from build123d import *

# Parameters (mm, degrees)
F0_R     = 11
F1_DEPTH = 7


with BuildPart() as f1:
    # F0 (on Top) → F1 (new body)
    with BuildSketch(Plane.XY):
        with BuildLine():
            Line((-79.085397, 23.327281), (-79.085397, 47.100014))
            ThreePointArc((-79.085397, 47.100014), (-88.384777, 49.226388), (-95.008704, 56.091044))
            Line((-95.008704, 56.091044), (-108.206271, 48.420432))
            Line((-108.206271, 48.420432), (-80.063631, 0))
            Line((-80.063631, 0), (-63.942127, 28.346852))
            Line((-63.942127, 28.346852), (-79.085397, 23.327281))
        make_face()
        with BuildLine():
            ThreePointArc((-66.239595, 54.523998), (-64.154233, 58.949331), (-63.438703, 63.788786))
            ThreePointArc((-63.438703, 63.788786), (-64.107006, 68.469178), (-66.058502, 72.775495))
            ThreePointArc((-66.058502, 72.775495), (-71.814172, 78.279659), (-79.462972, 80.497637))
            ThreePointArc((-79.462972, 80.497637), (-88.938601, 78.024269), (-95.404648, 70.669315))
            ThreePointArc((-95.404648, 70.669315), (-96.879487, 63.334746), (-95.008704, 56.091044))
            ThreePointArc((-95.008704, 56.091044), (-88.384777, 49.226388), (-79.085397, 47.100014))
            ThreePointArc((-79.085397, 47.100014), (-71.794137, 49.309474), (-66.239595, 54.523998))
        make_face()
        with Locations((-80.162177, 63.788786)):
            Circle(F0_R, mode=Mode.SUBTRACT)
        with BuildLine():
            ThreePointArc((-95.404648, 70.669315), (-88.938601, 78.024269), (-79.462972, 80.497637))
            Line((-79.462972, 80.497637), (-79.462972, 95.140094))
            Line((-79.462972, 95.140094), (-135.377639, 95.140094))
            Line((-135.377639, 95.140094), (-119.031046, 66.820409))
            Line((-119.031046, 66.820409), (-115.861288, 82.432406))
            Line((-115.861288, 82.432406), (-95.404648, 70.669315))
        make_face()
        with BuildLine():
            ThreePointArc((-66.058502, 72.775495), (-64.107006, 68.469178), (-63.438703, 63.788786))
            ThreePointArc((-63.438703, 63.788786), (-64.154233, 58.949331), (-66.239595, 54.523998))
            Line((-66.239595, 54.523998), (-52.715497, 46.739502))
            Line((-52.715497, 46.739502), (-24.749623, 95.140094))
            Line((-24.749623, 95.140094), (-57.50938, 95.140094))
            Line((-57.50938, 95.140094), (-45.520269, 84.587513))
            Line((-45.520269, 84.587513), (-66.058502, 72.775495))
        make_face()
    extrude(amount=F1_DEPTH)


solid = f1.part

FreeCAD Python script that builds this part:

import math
import FreeCAD as App
import Part
import Sketcher

doc = App.newDocument("Part")
body = doc.addObject("PartDesign::Body", "Body")

# Sketch on XY plane
sketch1 = body.newObject("Sketcher::SketchObject", "Sketch")
sketch1.AttachmentSupport = (doc.getObject("XY_Plane"), [""])
sketch1.MapMode = "FlatFace"
sketch1.addGeometry(Part.LineSegment(App.Vector(-79.085397, 23.327281, 0), App.Vector(-79.085397, 47.100014, 0)), False)
sketch1.addGeometry(Part.ArcOfCircle(Part.Circle(App.Vector(-80.162177, 63.788788, 0), App.Vector(0, 0, 1), 16.723476), math.radians(-86.308322), math.radians(-33.641801)), False)
sketch1.addGeometry(Part.LineSegment(App.Vector(-66.239595, 54.523998, 0), App.Vector(-52.715497, 46.739502, 0)), False)
sketch1.addGeometry(Part.LineSegment(App.Vector(-52.715497, 46.739502, 0), App.Vector(-24.749623, 95.140094, 0)), False)
sketch1.addGeometry(Part.LineSegment(App.Vector(-24.749623, 95.140094, 0), App.Vector(-57.50938, 95.140094, 0)), False)
sketch1.addGeometry(Part.LineSegment(App.Vector(-57.50938, 95.140094, 0), App.Vector(-45.520269, 84.587513, 0)), False)
sketch1.addGeometry(Part.LineSegment(App.Vector(-45.520269, 84.587513, 0), App.Vector(-66.058502, 72.775495, 0)), False)
sketch1.addGeometry(Part.ArcOfCircle(Part.Circle(App.Vector(-80.162177, 63.788786, 0), App.Vector(0, 0, 1), 16.723474), math.radians(32.504846), math.radians(87.603776)), False)
sketch1.addGeometry(Part.LineSegment(App.Vector(-79.462972, 80.497637, 0), App.Vector(-79.462972, 95.140094, 0)), False)
sketch1.addGeometry(Part.LineSegment(App.Vector(-79.462972, 95.140094, 0), App.Vector(-135.377639, 95.140094, 0)), False)
sketch1.addGeometry(Part.LineSegment(App.Vector(-135.377639, 95.140094, 0), App.Vector(-119.031046, 66.820409, 0)), False)
sketch1.addGeometry(Part.LineSegment(App.Vector(-119.031046, 66.820409, 0), App.Vector(-115.861288, 82.432406, 0)), False)
sketch1.addGeometry(Part.LineSegment(App.Vector(-115.861288, 82.432406, 0), App.Vector(-95.404648, 70.669315, 0)), False)
sketch1.addGeometry(Part.ArcOfCircle(Part.Circle(App.Vector(-80.162179, 63.788786, 0), App.Vector(0, 0, 1), 16.723473), math.radians(155.705339), math.radians(207.406189)), False)
sketch1.addGeometry(Part.LineSegment(App.Vector(-95.008704, 56.091044, 0), App.Vector(-108.206271, 48.420432, 0)), False)
sketch1.addGeometry(Part.LineSegment(App.Vector(-108.206271, 48.420432, 0), App.Vector(-80.063631, 0, 0)), False)
sketch1.addGeometry(Part.LineSegment(App.Vector(-80.063631, 0, 0), App.Vector(-63.942127, 28.346852, 0)), False)
sketch1.addGeometry(Part.LineSegment(App.Vector(-63.942127, 28.346852, 0), App.Vector(-79.085397, 23.327281, 0)), False)
sketch1.addGeometry(Part.Circle(App.Vector(-80.162177, 63.788786, 0), App.Vector(0, 0, 1), 11), False)
sketch1.addConstraint(Sketcher.Constraint("Coincident", 0, 2, 1, 1))
sketch1.addConstraint(Sketcher.Constraint("Coincident", 1, 2, 2, 1))
sketch1.addConstraint(Sketcher.Constraint("Coincident", 2, 2, 3, 1))
sketch1.addConstraint(Sketcher.Constraint("Coincident", 3, 2, 4, 1))
sketch1.addConstraint(Sketcher.Constraint("Coincident", 4, 2, 5, 1))
sketch1.addConstraint(Sketcher.Constraint("Coincident", 5, 2, 6, 1))
sketch1.addConstraint(Sketcher.Constraint("Coincident", 6, 2, 7, 1))
sketch1.addConstraint(Sketcher.Constraint("Coincident", 7, 2, 8, 1))
sketch1.addConstraint(Sketcher.Constraint("Coincident", 8, 2, 9, 1))
sketch1.addConstraint(Sketcher.Constraint("Coincident", 9, 2, 10, 1))
sketch1.addConstraint(Sketcher.Constraint("Coincident", 10, 2, 11, 1))
sketch1.addConstraint(Sketcher.Constraint("Coincident", 11, 2, 12, 1))
sketch1.addConstraint(Sketcher.Constraint("Coincident", 12, 2, 13, 1))
sketch1.addConstraint(Sketcher.Constraint("Coincident", 13, 2, 14, 1))
sketch1.addConstraint(Sketcher.Constraint("Coincident", 14, 2, 15, 1))
sketch1.addConstraint(Sketcher.Constraint("Coincident", 15, 2, 16, 1))
sketch1.addConstraint(Sketcher.Constraint("Coincident", 16, 2, 17, 1))
sketch1.addConstraint(Sketcher.Constraint("Coincident", 17, 2, 0, 1))
sketch1.addConstraint(Sketcher.Constraint("Vertical", 0))
sketch1.addConstraint(Sketcher.Constraint("Horizontal", 4))
sketch1.addConstraint(Sketcher.Constraint("Vertical", 8))
sketch1.addConstraint(Sketcher.Constraint("Horizontal", 9))
sketch1.addConstraint(Sketcher.Constraint("Coincident", 7, 3, 1, 3))
sketch1.addConstraint(Sketcher.Constraint("Coincident", 13, 3, 1, 3))
sketch1.addConstraint(Sketcher.Constraint("Coincident", 18, 3, 1, 3))
sketch1.addConstraint(Sketcher.Constraint("PointOnObject", 15, 2, -1))
sketch1.addConstraint(Sketcher.Constraint("Diameter", 18, 22.0))
sketch1.addConstraint(Sketcher.Constraint("DistanceY", -1, 1, 1, 2, 54.523998))
sketch1.addConstraint(Sketcher.Constraint("Radius", 1, 16.723476))
sketch1.addConstraint(Sketcher.Constraint("Radius", 7, 16.723474))
sketch1.addConstraint(Sketcher.Constraint("Radius", 13, 16.723473))
sketch1.addConstraint(Sketcher.Constraint("Distance", 14, 15.264798))
sketch1.addConstraint(Sketcher.Constraint("DistanceX", 0, 2, 1, 2, 12.845802))
sketch1.addConstraint(Sketcher.Constraint("DistanceX", 1, 2, 2, 2, 13.524098))
sketch1.addConstraint(Sketcher.Constraint("DistanceX", 13, 3, 4, 2, 22.652799))
sketch1.addConstraint(Sketcher.Constraint("DistanceY", 6, 2, 8, 2, 22.364599))
sketch1.addConstraint(Sketcher.Constraint("Distance", 11, 15.930531))
sketch1.addConstraint(Sketcher.Constraint("Distance", 12, 23.597551))
sketch1.addConstraint(Sketcher.Constraint("Distance", 15, 56.004879))
sketch1.addConstraint(Sketcher.Constraint("DistanceX", 4, 2, 4, 1, 32.759757))
sketch1.addConstraint(Sketcher.Constraint("DistanceX", 9, 2, 9, 1, 55.914667))
sketch1.addConstraint(Sketcher.Constraint("DistanceY", 0, 1, 0, 2, 23.772733))
sketch1.addConstraint(Sketcher.Constraint("DistanceY", 8, 1, 8, 2, 14.642457))
sketch1.addConstraint(Sketcher.Constraint("DistanceY", -1, 1, 1, 3, 63.788788))
sketch1.addConstraint(Sketcher.Constraint("DistanceX", 13, 3, -1, 1, 80.162179))
sketch1.addConstraint(Sketcher.Constraint("DistanceX", 5, 2, -1, 1, 45.520269))
sketch1.addConstraint(Sketcher.Constraint("DistanceX", 7, 2, -1, 1, 79.462972))
sketch1.addConstraint(Sketcher.Constraint("DistanceY", -1, 1, 10, 2, 66.820409))
sketch1.addConstraint(Sketcher.Constraint("DistanceX", 11, 2, -1, 1, 115.861288))
sketch1.addConstraint(Sketcher.Constraint("DistanceX", 14, 2, -1, 1, 108.206271))
sketch1.addConstraint(Sketcher.Constraint("DistanceY", -1, 1, 14, 2, 48.420432))
sketch1.addConstraint(Sketcher.Constraint("DistanceY", -1, 1, 16, 2, 28.346852))
sketch1.addConstraint(Sketcher.Constraint("DistanceY", 2, 2, 0, 2, 0.360512))
sketch1.addConstraint(Sketcher.Constraint("DistanceY", 18, 3, 3, 2, 31.351308))
sketch1.addConstraint(Sketcher.Constraint("DistanceY", 5, 2, 4, 2, 10.552581))
sketch1.addConstraint(Sketcher.Constraint("DistanceX", 10, 2, 1, 3, 38.868869))
sketch1.addConstraint(Sketcher.Constraint("DistanceX", 16, 2, 2, 2, 11.22663))
pad1 = body.newObject("PartDesign::Pad", "Pad")
pad1.Profile = sketch1
pad1.Length = 7

doc.recompute()
